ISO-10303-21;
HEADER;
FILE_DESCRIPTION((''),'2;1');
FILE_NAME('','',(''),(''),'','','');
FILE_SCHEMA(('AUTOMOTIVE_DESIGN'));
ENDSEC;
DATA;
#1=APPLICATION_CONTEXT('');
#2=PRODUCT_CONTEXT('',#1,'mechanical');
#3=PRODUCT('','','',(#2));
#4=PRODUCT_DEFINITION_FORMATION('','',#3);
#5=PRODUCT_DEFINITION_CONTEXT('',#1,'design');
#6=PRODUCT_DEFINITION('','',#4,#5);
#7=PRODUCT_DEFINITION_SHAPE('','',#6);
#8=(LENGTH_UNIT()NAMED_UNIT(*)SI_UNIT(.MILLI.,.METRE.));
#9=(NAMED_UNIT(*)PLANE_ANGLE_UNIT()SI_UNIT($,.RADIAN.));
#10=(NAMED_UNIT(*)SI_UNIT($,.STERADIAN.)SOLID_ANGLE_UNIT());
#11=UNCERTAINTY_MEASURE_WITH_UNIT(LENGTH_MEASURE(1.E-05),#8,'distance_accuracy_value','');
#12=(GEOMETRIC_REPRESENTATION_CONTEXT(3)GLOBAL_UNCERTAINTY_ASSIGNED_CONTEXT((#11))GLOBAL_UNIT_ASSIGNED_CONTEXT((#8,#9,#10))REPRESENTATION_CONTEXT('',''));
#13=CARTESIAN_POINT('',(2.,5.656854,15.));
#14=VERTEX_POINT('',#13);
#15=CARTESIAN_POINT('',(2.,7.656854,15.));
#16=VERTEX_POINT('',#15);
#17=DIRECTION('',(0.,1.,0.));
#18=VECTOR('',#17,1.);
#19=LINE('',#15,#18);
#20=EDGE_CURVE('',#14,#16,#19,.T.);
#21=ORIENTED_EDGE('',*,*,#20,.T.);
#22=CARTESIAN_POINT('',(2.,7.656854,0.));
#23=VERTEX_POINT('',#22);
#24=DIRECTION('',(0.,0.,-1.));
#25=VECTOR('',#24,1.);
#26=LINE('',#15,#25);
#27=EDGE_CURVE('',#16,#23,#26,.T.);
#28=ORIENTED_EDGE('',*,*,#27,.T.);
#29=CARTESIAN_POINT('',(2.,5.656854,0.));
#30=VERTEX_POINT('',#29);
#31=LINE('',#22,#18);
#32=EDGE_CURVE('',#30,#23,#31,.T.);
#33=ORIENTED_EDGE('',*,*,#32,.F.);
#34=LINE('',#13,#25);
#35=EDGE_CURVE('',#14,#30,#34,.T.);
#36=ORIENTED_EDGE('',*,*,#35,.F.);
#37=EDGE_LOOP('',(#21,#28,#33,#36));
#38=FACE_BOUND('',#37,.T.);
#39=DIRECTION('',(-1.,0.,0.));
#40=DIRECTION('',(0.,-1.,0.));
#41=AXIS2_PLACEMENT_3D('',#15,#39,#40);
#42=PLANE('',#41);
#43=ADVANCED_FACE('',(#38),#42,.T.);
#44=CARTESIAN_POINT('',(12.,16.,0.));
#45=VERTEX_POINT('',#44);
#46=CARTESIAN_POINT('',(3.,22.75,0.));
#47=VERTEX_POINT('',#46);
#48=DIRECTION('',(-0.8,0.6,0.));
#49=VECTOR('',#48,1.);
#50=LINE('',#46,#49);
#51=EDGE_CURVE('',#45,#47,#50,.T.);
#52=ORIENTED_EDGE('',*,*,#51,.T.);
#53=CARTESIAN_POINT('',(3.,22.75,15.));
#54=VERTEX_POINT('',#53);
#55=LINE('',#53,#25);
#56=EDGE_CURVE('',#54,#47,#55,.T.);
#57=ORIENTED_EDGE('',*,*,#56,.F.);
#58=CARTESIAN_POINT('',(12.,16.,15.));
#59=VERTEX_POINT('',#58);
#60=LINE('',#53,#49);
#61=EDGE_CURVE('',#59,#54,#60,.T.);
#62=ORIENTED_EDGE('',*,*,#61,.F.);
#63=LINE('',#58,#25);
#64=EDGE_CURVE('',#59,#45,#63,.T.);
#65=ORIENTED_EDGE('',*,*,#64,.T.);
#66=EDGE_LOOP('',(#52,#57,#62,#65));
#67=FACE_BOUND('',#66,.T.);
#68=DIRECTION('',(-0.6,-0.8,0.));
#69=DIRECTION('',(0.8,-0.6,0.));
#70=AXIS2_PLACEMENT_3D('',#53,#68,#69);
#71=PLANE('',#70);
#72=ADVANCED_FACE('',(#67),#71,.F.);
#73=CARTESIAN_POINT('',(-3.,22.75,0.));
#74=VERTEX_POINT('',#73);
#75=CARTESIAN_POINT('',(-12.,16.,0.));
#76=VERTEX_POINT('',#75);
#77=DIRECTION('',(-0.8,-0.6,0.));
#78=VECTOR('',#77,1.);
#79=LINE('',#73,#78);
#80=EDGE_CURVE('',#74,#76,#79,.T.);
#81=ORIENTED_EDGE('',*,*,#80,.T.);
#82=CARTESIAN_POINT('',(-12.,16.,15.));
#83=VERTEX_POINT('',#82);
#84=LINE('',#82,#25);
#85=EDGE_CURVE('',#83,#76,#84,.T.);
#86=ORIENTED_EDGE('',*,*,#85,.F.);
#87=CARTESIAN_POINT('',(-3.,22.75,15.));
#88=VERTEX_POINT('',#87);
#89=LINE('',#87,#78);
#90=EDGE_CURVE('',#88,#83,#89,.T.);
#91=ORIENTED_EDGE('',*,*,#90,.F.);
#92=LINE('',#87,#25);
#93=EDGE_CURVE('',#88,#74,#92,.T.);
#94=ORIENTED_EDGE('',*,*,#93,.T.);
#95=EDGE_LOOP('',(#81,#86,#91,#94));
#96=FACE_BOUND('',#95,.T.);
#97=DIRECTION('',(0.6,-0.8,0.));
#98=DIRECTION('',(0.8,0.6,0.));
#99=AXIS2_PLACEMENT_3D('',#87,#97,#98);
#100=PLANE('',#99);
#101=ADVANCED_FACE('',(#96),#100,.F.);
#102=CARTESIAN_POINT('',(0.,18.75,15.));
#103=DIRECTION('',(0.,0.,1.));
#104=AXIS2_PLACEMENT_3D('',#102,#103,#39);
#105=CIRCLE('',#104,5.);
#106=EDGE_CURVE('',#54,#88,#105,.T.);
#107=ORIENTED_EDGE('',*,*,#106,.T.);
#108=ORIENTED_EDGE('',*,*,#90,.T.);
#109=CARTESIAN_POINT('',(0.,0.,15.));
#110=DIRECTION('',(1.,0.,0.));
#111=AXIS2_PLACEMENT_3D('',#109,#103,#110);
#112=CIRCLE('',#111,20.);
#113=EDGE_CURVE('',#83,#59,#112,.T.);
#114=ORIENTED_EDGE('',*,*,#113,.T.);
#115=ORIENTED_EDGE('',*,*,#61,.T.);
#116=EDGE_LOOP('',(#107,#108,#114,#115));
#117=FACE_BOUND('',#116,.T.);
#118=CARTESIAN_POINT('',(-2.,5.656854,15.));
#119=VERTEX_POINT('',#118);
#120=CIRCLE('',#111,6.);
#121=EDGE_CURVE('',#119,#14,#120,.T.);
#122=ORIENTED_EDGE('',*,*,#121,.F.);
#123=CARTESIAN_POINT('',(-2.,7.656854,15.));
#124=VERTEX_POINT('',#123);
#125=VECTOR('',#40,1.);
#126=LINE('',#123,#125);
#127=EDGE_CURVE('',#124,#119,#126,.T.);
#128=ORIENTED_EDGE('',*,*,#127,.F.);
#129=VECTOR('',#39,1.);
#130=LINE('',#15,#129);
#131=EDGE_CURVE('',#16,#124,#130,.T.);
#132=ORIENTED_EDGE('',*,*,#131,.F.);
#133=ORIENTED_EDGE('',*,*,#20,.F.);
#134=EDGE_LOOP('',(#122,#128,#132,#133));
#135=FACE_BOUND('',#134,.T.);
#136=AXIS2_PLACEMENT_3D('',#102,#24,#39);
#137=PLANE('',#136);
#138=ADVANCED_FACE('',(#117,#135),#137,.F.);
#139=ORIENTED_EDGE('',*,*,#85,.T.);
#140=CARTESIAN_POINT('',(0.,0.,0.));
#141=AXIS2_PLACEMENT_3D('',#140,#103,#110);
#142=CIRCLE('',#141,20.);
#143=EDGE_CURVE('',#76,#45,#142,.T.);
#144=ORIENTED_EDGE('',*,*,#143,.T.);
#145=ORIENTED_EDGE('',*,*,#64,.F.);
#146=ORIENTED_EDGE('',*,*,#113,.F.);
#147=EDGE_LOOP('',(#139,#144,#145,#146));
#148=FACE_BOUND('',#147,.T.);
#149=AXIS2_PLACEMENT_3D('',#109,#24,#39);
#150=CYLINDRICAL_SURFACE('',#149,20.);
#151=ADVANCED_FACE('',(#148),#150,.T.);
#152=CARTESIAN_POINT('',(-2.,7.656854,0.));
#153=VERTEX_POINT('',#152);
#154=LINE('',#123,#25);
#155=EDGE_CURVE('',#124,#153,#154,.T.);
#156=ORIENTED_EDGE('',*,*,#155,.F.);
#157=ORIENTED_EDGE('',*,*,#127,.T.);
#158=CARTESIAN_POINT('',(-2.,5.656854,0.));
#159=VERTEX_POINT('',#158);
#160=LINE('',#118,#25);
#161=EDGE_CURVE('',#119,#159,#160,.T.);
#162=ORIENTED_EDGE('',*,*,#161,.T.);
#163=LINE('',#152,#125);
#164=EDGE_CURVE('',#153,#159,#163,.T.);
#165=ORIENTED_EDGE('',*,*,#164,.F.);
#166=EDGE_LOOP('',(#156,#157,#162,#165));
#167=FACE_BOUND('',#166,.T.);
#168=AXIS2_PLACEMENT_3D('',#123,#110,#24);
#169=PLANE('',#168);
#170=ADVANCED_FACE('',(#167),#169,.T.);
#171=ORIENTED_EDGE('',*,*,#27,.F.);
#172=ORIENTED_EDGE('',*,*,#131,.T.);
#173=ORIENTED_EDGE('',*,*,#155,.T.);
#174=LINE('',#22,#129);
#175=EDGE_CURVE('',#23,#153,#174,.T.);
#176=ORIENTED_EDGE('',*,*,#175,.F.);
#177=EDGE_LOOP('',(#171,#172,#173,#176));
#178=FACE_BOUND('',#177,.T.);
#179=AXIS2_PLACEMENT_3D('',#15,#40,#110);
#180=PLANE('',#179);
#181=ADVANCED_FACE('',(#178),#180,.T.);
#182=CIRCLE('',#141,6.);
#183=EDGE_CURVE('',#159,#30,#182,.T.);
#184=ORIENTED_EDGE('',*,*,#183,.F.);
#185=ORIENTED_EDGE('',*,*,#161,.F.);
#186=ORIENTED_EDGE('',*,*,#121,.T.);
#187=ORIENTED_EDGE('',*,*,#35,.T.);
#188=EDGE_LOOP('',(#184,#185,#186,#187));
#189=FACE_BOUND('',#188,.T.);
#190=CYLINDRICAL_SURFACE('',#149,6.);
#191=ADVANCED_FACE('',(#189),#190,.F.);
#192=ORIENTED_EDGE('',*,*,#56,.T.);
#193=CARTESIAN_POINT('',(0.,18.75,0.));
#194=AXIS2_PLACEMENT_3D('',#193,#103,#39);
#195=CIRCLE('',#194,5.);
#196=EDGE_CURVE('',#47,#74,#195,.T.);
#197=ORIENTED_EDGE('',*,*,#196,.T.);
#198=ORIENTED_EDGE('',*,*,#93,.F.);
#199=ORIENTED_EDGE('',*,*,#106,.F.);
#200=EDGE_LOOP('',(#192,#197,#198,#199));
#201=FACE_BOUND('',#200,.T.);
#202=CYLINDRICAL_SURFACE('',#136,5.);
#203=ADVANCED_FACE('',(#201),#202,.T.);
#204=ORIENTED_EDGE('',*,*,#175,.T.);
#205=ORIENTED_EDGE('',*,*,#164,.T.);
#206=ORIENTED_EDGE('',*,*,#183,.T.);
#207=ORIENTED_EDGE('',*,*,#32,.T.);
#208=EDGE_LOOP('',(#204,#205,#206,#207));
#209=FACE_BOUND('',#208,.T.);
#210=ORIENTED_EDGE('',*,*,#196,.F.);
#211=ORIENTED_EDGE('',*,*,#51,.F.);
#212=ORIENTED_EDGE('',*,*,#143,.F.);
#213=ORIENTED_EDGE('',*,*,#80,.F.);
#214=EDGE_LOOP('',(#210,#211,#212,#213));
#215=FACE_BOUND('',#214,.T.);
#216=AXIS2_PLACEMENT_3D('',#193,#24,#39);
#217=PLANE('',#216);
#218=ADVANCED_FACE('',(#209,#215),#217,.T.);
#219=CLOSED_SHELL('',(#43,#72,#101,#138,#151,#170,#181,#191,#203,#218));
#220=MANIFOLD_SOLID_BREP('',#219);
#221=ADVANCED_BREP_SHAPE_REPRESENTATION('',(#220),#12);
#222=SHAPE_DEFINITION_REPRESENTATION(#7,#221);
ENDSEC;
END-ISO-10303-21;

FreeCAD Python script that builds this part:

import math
import FreeCAD as App
import Part
import Sketcher

doc = App.newDocument("Part")
params = doc.addObject("Spreadsheet::Sheet", "Params")
for row, (alias, value) in enumerate([
    ("sketch1_radius", "20 mm"),
    ("sketch1_radius2", "5 mm"),
    ("sketch1_radius3", "6 mm"),
    ("sketch1_width", "4 mm"),
    ("sketch1_height", "2 mm"),
    ("pad1_length", "15 mm"),
], start=1):
    params.set(f"A{row}", alias)
    params.set(f"B{row}", "=" + value)
    params.setAlias(f"B{row}", alias)

body = doc.addObject("PartDesign::Body", "Body")

sketch1 = body.newObject("Sketcher::SketchObject", "Sketch")
sketch1.AttachmentSupport = (doc.getObject("XY_Plane"), [""])
sketch1.MapMode = "FlatFace"
sketch1.addGeometry(Part.LineSegment(App.Vector(-3, 22.8, 0), App.Vector(-12, 16, 0)), False)
sketch1.addGeometry(Part.ArcOfCircle(Part.Circle(App.Vector(0, 0, 0), App.Vector(0, 0, 1), 20), math.radians(127), math.radians(413)), False)
sketch1.addGeometry(Part.LineSegment(App.Vector(12, 16, 0), App.Vector(3, 22.8, 0)), False)
sketch1.addGeometry(Part.ArcOfCircle(Part.Circle(App.Vector(0, 18.8, 0), App.Vector(0, 0, 1), 5), math.radians(53), math.radians(127)), False)
sketch1.addGeometry(Part.LineSegment(App.Vector(-2, 7.7, 0), App.Vector(2, 7.7, 0)), False)
sketch1.addGeometry(Part.LineSegment(App.Vector(2, 7.7, 0), App.Vector(2, 5.7, 0)), False)
sketch1.addGeometry(Part.ArcOfCircle(Part.Circle(App.Vector(0, 0, 0), App.Vector(0, 0, 1), 6), math.radians(109), math.radians(431)), False)
sketch1.addGeometry(Part.LineSegment(App.Vector(-2, 5.7, 0), App.Vector(-2, 7.7, 0)), False)
sketch1.addConstraint(Sketcher.Constraint("Tangent", 0, 2, 1, 1))
sketch1.addConstraint(Sketcher.Constraint("Tangent", 1, 2, 2, 1))
sketch1.addConstraint(Sketcher.Constraint("Tangent", 2, 2, 3, 1))
sketch1.addConstraint(Sketcher.Constraint("Tangent", 3, 2, 0, 1))
sketch1.addConstraint(Sketcher.Constraint("Coincident", 4, 2, 5, 1))
sketch1.addConstraint(Sketcher.Constraint("Coincident", 5, 2, 6, 2))
sketch1.addConstraint(Sketcher.Constraint("Coincident", 6, 1, 7, 1))
sketch1.addConstraint(Sketcher.Constraint("Coincident", 7, 2, 4, 1))
sketch1.addConstraint(Sketcher.Constraint("Horizontal", 4))
sketch1.addConstraint(Sketcher.Constraint("Vertical", 5))
sketch1.addConstraint(Sketcher.Constraint("Vertical", 7))
sketch1.addConstraint(Sketcher.Constraint("Coincident", 1, 3, -1, 1))
sketch1.addConstraint(Sketcher.Constraint("Coincident", 6, 3, -1, 1))
sketch1.addConstraint(Sketcher.Constraint("PointOnObject", 3, 3, -2))
sketch1.addConstraint(Sketcher.Constraint("Horizontal", 5, 2, 6, 1))
sketch1.addConstraint(Sketcher.Constraint("Radius", 1, 20.0))
sketch1.addConstraint(Sketcher.Constraint("Radius", 3, 5.0))
sketch1.addConstraint(Sketcher.Constraint("Radius", 6, 6.0))
sketch1.addConstraint(Sketcher.Constraint("DistanceX", 4, 1, 4, 2, 4.0))
sketch1.addConstraint(Sketcher.Constraint("DistanceY", 5, 2, 5, 1, 2.0))
sketch1.addConstraint(Sketcher.Constraint("DistanceX", 0, 2, -1, 1, 12.0))
sketch1.setExpression("Constraints[15]", "Params.sketch1_radius")
sketch1.setExpression("Constraints[16]", "Params.sketch1_radius2")
sketch1.setExpression("Constraints[17]", "Params.sketch1_radius3")
sketch1.setExpression("Constraints[18]", "Params.sketch1_width")
sketch1.setExpression("Constraints[19]", "Params.sketch1_height")
pad1 = body.newObject("PartDesign::Pad", "Pad")
pad1.Profile = sketch1
pad1.setExpression("Length", "Params.pad1_length")

doc.recompute()
